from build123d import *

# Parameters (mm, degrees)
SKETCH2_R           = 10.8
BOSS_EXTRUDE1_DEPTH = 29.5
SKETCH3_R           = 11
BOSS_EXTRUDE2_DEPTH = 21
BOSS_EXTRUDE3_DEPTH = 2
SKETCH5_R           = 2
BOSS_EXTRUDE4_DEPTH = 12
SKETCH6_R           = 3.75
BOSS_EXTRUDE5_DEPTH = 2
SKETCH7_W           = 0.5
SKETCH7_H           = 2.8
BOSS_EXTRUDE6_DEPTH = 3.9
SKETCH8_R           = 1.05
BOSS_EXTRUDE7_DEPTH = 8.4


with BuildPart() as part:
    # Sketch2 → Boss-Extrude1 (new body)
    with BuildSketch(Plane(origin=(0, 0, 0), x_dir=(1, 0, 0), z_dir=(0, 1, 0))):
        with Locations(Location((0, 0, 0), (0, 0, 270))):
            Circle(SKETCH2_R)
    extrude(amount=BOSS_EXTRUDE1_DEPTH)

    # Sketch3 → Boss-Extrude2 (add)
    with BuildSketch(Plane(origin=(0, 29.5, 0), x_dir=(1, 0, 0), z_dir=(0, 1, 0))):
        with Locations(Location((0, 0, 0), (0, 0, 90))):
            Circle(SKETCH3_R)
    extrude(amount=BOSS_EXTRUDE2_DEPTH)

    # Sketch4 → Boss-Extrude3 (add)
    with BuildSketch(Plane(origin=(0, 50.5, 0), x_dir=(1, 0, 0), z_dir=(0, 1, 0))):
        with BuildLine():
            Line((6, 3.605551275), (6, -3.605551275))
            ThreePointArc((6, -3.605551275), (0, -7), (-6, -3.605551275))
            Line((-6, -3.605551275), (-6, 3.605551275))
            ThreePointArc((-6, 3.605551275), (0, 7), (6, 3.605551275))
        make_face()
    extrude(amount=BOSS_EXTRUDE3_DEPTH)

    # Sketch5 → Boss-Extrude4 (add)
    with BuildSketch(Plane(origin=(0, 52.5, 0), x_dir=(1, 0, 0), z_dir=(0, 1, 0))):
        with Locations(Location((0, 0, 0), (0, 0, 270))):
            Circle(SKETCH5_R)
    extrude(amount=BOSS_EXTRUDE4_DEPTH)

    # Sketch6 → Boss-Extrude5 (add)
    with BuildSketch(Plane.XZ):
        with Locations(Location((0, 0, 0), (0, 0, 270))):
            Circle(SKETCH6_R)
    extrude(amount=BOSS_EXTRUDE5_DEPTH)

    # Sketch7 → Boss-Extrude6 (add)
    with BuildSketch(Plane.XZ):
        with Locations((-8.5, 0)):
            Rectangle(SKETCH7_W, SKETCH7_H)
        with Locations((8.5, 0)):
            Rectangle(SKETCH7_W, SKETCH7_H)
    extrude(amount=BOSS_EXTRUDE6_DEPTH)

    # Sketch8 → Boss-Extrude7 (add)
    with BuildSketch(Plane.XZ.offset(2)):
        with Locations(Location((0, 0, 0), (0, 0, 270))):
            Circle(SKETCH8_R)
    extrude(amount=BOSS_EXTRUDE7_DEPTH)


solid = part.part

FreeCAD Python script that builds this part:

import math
import FreeCAD as App
import Part
import Sketcher


def add_polygon(sketch, points):
    """Adds a closed chain of lines whose ends are joined by coincident constraints."""
    first, n = sketch.GeometryCount, len(points)
    for a, b in zip(points, points[1:] + points[:1]):
        sketch.addGeometry(Part.LineSegment(App.Vector(*a, 0), App.Vector(*b, 0)), False)
    for i in range(n):
        sketch.addConstraint(Sketcher.Constraint("Coincident", first + i, 2, first + (i + 1) % n, 1))

doc = App.newDocument("Part")
body = doc.addObject("PartDesign::Body", "Body")

# Sketch on XZ plane
sketch1 = doc.addObject("Sketcher::SketchObject", "Sketch")
body.addObject(sketch1)
sketch1.AttachmentSupport = (doc.XZ_Plane, [""])
sketch1.MapMode = "FlatFace"
sketch1.addGeometry(Part.Circle(App.Vector(0, 0, 0), App.Vector(0, 0, 1), 11), False)
sketch1.addConstraint(Sketcher.Constraint("Coincident", 0, 3, -1, 1))
sketch1.addConstraint(Sketcher.Constraint("Diameter", 0, 21.6))
pad1 = doc.addObject("PartDesign::Pad", "Pad")
body.addObject(pad1)
pad1.Profile = sketch1
pad1.Length = 29.5
pad1.Reversed = True

# Sketch on XZ plane
sketch2 = doc.addObject("Sketcher::SketchObject", "Sketch001")
body.addObject(sketch2)
sketch2.AttachmentSupport = (doc.XZ_Plane, [""])
sketch2.MapMode = "FlatFace"
sketch2.AttachmentOffset = App.Placement(App.Vector(0, 0, -29.5), App.Rotation())
sketch2.addGeometry(Part.Circle(App.Vector(0, 0, 0), App.Vector(0, 0, 1), 11), False)
sketch2.addConstraint(Sketcher.Constraint("Coincident", 0, 3, -1, 1))
sketch2.addConstraint(Sketcher.Constraint("Diameter", 0, 22.0))
pad2 = doc.addObject("PartDesign::Pad", "Pad001")
body.addObject(pad2)
pad2.Profile = sketch2
pad2.Length = 21
pad2.Reversed = True

# Sketch on XZ plane
sketch3 = doc.addObject("Sketcher::SketchObject", "Sketch002")
body.addObject(sketch3)
sketch3.AttachmentSupport = (doc.XZ_Plane, [""])
sketch3.MapMode = "FlatFace"
sketch3.AttachmentOffset = App.Placement(App.Vector(0, 0, -50.5), App.Rotation())
sketch3.addGeometry(Part.LineSegment(App.Vector(6, 4, 0), App.Vector(6, -4, 0)), False)
sketch3.addGeometry(Part.ArcOfCircle(Part.Circle(App.Vector(0, 0, 0), App.Vector(0, 0, 1), 7), math.radians(-149), math.radians(-31)), False)
sketch3.addGeometry(Part.LineSegment(App.Vector(-6, -4, 0), App.Vector(-6, 4, 0)), False)
sketch3.addGeometry(Part.ArcOfCircle(Part.Circle(App.Vector(0, 0, 0), App.Vector(0, 0, 1), 7), math.radians(31), math.radians(149)), False)
sketch3.addConstraint(Sketcher.Constraint("Coincident", 0, 2, 1, 2))
sketch3.addConstraint(Sketcher.Constraint("Coincident", 1, 1, 2, 1))
sketch3.addConstraint(Sketcher.Constraint("Coincident", 2, 2, 3, 2))
sketch3.addConstraint(Sketcher.Constraint("Coincident", 3, 1, 0, 1))
sketch3.addConstraint(Sketcher.Constraint("Vertical", 0))
sketch3.addConstraint(Sketcher.Constraint("Vertical", 2))
sketch3.addConstraint(Sketcher.Constraint("Coincident", 1, 3, -1, 1))
sketch3.addConstraint(Sketcher.Constraint("Coincident", 3, 3, -1, 1))
sketch3.addConstraint(Sketcher.Constraint("Equal", 1, 3))
sketch3.addConstraint(Sketcher.Constraint("Horizontal", 0, 2, 1, 1))
sketch3.addConstraint(Sketcher.Constraint("Radius", 1, 7.0))
sketch3.addConstraint(Sketcher.Constraint("DistanceX", -1, 1, 0, 2, 6.0))
pad3 = doc.addObject("PartDesign::Pad", "Pad002")
body.addObject(pad3)
pad3.Profile = sketch3
pad3.Length = 2
pad3.Reversed = True

# Sketch on XZ plane
sketch4 = doc.addObject("Sketcher::SketchObject", "Sketch003")
body.addObject(sketch4)
sketch4.AttachmentSupport = (doc.XZ_Plane, [""])
sketch4.MapMode = "FlatFace"
sketch4.AttachmentOffset = App.Placement(App.Vector(0, 0, -52.5), App.Rotation())
sketch4.addGeometry(Part.Circle(App.Vector(0, 0, 0), App.Vector(0, 0, 1), 2), False)
sketch4.addConstraint(Sketcher.Constraint("Coincident", 0, 3, -1, 1))
sketch4.addConstraint(Sketcher.Constraint("Diameter", 0, 4.0))
pad4 = doc.addObject("PartDesign::Pad", "Pad003")
body.addObject(pad4)
pad4.Profile = sketch4
pad4.Length = 12
pad4.Reversed = True

# Sketch on XZ plane
sketch5 = doc.addObject("Sketcher::SketchObject", "Sketch004")
body.addObject(sketch5)
sketch5.AttachmentSupport = (doc.XZ_Plane, [""])
sketch5.MapMode = "FlatFace"
sketch5.addGeometry(Part.Circle(App.Vector(0, 0, 0), App.Vector(0, 0, 1), 3.8), False)
sketch5.addConstraint(Sketcher.Constraint("Coincident", 0, 3, -1, 1))
sketch5.addConstraint(Sketcher.Constraint("Diameter", 0, 7.5))
pad5 = doc.addObject("PartDesign::Pad", "Pad004")
body.addObject(pad5)
pad5.Profile = sketch5
pad5.Length = 2

# Sketch on XZ plane
sketch6 = doc.addObject("Sketcher::SketchObject", "Sketch005")
body.addObject(sketch6)
sketch6.AttachmentSupport = (doc.XZ_Plane, [""])
sketch6.MapMode = "FlatFace"
add_polygon(sketch6, [(-8.8, 1.4), (-8.8, -1.4), (-8.2, -1.4), (-8.2, 1.4)])  # lines 0-3
add_polygon(sketch6, [(8.2, 1.4), (8.2, -1.4), (8.8, -1.4), (8.8, 1.4)])  # lines 4-7
sketch6.addConstraint(Sketcher.Constraint("Vertical", 0))
sketch6.addConstraint(Sketcher.Constraint("Horizontal", 1))
sketch6.addConstraint(Sketcher.Constraint("Vertical", 2))
sketch6.addConstraint(Sketcher.Constraint("Horizontal", 3))
sketch6.addConstraint(Sketcher.Constraint("Vertical", 4))
sketch6.addConstraint(Sketcher.Constraint("Horizontal", 5))
sketch6.addConstraint(Sketcher.Constraint("Vertical", 6))
sketch6.addConstraint(Sketcher.Constraint("Horizontal", 7))
sketch6.addConstraint(Sketcher.Constraint("Symmetric", 2, 2, 4, 2, -1, 1))
sketch6.addConstraint(Sketcher.Constraint("Symmetric", 0, 2, 6, 2, -1, 1))
sketch6.addConstraint(Sketcher.Constraint("Horizontal", 1, 2, 4, 2))
sketch6.addConstraint(Sketcher.Constraint("DistanceX", 1, 1, 1, 2, 0.5))
sketch6.addConstraint(Sketcher.Constraint("DistanceY", 0, 2, 0, 1, 2.8))
sketch6.addConstraint(Sketcher.Constraint("DistanceX", 0, 2, 4, 2, 17.0))
pad6 = doc.addObject("PartDesign::Pad", "Pad005")
body.addObject(pad6)
pad6.Profile = sketch6
pad6.Length = 3.9

# Sketch on XZ plane
sketch7 = doc.addObject("Sketcher::SketchObject", "Sketch006")
body.addObject(sketch7)
sketch7.AttachmentSupport = (doc.XZ_Plane, [""])
sketch7.MapMode = "FlatFace"
sketch7.AttachmentOffset = App.Placement(App.Vector(0, 0, 2), App.Rotation())
sketch7.addGeometry(Part.Circle(App.Vector(0, 0, 0), App.Vector(0, 0, 1), 1.1), False)
sketch7.addConstraint(Sketcher.Constraint("Coincident", 0, 3, -1, 1))
sketch7.addConstraint(Sketcher.Constraint("Diameter", 0, 2.1))
pad7 = doc.addObject("PartDesign::Pad", "Pad006")
body.addObject(pad7)
pad7.Profile = sketch7
pad7.Length = 8.4

doc.recompute()
